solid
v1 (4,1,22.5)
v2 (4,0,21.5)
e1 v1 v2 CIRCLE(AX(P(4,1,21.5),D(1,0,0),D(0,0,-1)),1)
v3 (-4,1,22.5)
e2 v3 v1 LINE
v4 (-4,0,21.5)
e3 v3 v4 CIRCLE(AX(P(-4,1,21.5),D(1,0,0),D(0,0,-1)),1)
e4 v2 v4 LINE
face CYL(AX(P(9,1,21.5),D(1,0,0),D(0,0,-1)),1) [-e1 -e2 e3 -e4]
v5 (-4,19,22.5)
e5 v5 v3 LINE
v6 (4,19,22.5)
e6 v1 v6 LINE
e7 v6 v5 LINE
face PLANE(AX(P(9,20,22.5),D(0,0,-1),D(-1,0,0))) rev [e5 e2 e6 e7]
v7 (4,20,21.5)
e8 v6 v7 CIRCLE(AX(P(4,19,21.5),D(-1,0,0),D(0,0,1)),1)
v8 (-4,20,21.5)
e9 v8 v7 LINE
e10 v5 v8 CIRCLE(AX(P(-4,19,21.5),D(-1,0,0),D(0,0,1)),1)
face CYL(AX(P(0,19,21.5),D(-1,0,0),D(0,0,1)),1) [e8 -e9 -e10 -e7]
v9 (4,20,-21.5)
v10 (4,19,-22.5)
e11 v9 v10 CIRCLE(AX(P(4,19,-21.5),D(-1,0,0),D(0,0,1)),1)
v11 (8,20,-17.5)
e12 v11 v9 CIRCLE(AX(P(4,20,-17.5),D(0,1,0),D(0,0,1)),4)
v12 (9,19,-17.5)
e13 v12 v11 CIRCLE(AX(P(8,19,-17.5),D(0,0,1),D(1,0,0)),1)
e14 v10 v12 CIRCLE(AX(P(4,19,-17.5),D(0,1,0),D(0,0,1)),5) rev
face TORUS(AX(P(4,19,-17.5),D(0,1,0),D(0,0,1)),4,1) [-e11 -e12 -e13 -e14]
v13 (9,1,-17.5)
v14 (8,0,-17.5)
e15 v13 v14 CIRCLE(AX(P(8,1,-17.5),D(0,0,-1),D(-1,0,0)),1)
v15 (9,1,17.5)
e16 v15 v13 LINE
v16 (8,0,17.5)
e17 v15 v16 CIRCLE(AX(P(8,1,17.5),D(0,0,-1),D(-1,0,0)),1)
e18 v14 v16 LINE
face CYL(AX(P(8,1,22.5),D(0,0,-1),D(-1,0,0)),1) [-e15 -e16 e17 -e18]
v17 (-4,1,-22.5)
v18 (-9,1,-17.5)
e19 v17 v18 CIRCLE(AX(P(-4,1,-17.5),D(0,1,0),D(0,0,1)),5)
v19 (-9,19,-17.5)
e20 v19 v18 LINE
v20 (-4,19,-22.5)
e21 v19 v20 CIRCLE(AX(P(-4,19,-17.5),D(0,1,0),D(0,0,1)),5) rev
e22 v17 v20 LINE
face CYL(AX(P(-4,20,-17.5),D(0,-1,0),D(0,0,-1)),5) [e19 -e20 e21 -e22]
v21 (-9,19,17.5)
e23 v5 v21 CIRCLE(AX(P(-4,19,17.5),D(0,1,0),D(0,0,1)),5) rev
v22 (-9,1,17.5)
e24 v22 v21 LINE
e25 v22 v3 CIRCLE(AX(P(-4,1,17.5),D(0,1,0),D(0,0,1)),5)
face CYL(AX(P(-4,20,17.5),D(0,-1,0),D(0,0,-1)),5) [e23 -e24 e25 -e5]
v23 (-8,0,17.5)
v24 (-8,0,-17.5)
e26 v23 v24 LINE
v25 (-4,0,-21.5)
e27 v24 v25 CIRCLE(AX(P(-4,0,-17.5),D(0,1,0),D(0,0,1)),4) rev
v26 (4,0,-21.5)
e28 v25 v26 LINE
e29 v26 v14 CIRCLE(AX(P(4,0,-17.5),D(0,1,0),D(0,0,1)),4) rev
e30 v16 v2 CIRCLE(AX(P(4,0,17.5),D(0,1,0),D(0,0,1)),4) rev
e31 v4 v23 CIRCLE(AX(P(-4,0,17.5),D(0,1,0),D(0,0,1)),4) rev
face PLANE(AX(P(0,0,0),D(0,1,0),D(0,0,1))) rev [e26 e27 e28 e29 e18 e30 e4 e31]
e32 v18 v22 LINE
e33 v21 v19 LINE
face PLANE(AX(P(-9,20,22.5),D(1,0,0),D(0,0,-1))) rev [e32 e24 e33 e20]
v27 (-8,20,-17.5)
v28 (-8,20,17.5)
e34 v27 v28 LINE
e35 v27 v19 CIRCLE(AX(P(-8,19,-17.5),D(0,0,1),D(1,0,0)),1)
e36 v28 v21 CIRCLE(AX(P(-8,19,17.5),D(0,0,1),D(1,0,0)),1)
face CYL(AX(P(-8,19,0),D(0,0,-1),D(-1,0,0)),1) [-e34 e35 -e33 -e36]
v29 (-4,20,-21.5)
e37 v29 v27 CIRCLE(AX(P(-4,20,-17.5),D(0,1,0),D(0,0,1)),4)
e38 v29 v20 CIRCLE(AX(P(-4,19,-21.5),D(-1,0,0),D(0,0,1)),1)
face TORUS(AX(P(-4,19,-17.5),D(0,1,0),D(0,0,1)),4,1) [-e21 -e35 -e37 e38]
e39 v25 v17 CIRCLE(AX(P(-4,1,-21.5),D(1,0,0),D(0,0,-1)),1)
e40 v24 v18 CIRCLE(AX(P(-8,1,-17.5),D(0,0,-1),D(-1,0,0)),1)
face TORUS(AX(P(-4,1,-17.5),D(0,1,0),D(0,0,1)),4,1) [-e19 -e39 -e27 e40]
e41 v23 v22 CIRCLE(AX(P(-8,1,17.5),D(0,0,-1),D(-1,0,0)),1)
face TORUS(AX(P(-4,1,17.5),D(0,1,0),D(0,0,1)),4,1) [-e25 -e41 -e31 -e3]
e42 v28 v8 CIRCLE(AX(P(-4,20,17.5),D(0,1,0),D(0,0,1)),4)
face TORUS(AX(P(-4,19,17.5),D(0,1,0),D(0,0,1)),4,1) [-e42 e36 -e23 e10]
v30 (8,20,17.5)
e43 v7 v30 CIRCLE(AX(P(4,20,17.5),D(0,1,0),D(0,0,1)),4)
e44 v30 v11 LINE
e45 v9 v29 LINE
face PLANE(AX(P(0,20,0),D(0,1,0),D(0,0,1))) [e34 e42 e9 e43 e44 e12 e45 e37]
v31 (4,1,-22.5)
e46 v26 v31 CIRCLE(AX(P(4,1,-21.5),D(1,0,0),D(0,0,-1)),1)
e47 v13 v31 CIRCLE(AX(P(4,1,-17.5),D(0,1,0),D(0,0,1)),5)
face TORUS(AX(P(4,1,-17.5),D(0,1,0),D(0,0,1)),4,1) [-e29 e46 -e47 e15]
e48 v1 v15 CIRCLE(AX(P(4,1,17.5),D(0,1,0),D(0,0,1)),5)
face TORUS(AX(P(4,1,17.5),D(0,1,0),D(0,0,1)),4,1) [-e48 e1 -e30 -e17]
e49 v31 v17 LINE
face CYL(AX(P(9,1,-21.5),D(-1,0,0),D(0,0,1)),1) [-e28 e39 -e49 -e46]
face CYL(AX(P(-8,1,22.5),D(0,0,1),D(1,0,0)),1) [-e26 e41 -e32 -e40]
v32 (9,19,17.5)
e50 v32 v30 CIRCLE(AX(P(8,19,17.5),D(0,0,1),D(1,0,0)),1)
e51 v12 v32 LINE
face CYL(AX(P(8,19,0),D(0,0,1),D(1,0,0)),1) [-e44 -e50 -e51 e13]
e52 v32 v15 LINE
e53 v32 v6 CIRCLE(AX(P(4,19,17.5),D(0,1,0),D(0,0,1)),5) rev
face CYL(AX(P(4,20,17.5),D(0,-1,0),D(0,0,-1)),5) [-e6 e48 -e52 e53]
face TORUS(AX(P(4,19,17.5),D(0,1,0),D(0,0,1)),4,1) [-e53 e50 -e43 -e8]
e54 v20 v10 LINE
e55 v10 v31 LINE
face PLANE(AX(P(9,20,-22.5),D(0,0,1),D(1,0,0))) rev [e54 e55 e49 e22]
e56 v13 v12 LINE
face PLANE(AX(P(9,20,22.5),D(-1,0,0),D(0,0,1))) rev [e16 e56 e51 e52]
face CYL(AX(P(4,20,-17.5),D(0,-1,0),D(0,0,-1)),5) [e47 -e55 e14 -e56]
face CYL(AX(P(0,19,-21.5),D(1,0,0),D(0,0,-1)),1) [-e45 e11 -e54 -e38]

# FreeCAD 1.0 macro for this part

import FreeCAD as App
import Part
import Sketcher


def edges_at(feature, points):
    """Names of the edges that pass closest to the given points."""
    edges = feature.Shape.Edges
    near = lambda p: min(range(len(edges)), key=lambda i: edges[i].distToShape(Part.Vertex(*p))[0])
    return sorted({f"Edge{near(p) + 1}" for p in points})

doc = App.newDocument("Part")
params = doc.addObject("Spreadsheet::Sheet", "Params")
for row, (alias, value) in enumerate([
    ("sketch1_width", "18 mm"),
    ("sketch1_height", "45 mm"),
    ("pad1_length", "20 mm"),
    ("fillet_radius", "5 mm"),
    ("fillet2_radius", "1 mm"),
], start=1):
    params.set(f"A{row}", alias)
    params.set(f"B{row}", "=" + value)
    params.setAlias(f"B{row}", alias)

body = doc.addObject("PartDesign::Body", "Body")

sketch1 = body.newObject("Sketcher::SketchObject", "Sketch")
sketch1.AttachmentSupport = (doc.getObject("XZ_Plane"), [""])
sketch1.MapMode = "FlatFace"
sketch1.addGeometry(Part.LineSegment(App.Vector(-9, -22.5, 0), App.Vector(-9, 22.5, 0)), False)
sketch1.addGeometry(Part.LineSegment(App.Vector(-9, 22.5, 0), App.Vector(9, 22.5, 0)), False)
sketch1.addGeometry(Part.LineSegment(App.Vector(9, 22.5, 0), App.Vector(9, -22.5, 0)), False)
sketch1.addGeometry(Part.LineSegment(App.Vector(9, -22.5, 0), App.Vector(-9, -22.5, 0)), False)
sketch1.addConstraint(Sketcher.Constraint("Coincident", 0, 2, 1, 1))
sketch1.addConstraint(Sketcher.Constraint("Coincident", 1, 2, 2, 1))
sketch1.addConstraint(Sketcher.Constraint("Coincident", 2, 2, 3, 1))
sketch1.addConstraint(Sketcher.Constraint("Coincident", 3, 2, 0, 1))
sketch1.addConstraint(Sketcher.Constraint("Vertical", 0))
sketch1.addConstraint(Sketcher.Constraint("Horizontal", 1))
sketch1.addConstraint(Sketcher.Constraint("Vertical", 2))
sketch1.addConstraint(Sketcher.Constraint("Horizontal", 3))
sketch1.addConstraint(Sketcher.Constraint("Symmetric", 0, 2, 2, 2, -1, 1))
sketch1.addConstraint(Sketcher.Constraint("DistanceX", 1, 1, 1, 2, 18.0))
sketch1.addConstraint(Sketcher.Constraint("DistanceY", 0, 1, 0, 2, 45.0))
sketch1.setExpression("Constraints[9]", "Params.sketch1_width")
sketch1.setExpression("Constraints[10]", "Params.sketch1_height")
pad1 = body.newObject("PartDesign::Pad", "Pad")
pad1.Profile = sketch1
pad1.setExpression("Length", "Params.pad1_length")
pad1.Reversed = True
doc.recompute()

fillet = body.newObject("PartDesign::Fillet", "Fillet")
fillet.Base = (pad1, edges_at(pad1, [
    (-9, 10, -22.5),
    (9, 10, -22.5),
    (9, 10, 22.5),
    (-9, 10, 22.5),
]))
fillet.setExpression("Radius", "Params.fillet_radius")
doc.recompute()

fillet2 = body.newObject("PartDesign::Fillet", "Fillet001")
fillet2.Base = (fillet, edges_at(fillet, [
    (9, 0, 0),
    (9, 20, 0),
    (-9, 0, 0),
    (0, 0, -22.5),
    (0, 0, 22.5),
    (-7.536, 0, -21.036),
    (7.536, 0, -21.036),
    (-7.536, 0, 21.036),
    (7.536, 0, 21.036),
    (0, 20, 22.5),
    (-9, 20, 0),
    (0, 20, -22.5),
    (-7.536, 20, -21.036),
    (7.536, 20, -21.036),
    (-7.536, 20, 21.036),
    (7.536, 20, 21.036),
]))
fillet2.setExpression("Radius", "Params.fillet2_radius")

doc.recompute()
